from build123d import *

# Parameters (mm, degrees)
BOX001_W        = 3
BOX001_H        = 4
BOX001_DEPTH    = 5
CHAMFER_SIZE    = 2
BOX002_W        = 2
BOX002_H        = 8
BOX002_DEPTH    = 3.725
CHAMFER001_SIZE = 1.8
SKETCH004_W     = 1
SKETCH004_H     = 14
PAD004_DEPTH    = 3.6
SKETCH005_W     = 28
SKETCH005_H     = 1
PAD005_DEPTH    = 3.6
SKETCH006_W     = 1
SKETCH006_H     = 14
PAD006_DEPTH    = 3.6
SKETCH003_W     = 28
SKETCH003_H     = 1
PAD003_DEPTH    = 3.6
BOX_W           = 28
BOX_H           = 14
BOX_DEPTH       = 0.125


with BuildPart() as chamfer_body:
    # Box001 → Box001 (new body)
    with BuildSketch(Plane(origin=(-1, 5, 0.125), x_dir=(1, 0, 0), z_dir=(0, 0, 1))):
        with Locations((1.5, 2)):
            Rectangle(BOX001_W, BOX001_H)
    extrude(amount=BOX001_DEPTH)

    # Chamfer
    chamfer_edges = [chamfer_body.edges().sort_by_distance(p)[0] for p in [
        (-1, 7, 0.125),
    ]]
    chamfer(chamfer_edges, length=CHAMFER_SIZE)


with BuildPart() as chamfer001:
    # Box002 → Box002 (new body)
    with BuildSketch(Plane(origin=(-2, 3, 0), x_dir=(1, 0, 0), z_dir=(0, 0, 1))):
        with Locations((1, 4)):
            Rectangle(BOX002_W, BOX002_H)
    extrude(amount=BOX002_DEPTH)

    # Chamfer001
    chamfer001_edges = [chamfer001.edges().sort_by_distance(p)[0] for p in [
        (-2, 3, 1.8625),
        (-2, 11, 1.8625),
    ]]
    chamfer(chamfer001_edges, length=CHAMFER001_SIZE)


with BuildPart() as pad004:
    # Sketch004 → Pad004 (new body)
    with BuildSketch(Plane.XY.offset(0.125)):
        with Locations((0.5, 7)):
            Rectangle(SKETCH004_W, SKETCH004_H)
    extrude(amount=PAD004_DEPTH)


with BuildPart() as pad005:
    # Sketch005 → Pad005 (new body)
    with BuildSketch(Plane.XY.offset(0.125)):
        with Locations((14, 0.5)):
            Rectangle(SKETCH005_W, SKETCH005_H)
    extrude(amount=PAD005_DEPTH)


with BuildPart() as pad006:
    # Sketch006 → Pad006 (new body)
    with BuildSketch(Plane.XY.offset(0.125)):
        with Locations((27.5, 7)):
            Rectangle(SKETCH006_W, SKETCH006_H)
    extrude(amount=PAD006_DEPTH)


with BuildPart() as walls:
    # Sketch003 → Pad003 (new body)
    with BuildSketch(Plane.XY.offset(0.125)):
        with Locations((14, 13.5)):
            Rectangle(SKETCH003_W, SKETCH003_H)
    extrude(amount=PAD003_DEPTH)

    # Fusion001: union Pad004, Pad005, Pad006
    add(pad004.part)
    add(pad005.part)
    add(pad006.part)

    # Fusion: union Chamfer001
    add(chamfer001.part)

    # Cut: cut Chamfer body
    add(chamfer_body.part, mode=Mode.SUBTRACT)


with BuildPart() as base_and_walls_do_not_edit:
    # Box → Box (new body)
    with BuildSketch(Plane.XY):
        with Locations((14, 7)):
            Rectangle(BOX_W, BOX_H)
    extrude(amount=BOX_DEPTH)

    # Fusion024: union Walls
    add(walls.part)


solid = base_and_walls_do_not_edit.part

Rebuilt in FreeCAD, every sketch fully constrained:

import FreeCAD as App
import Part
import Sketcher

V = App.Vector
Q = App.Units.Quantity


def edges_at(feature, points):
    """Names of the edges that pass closest to the given points."""
    edges = feature.Shape.Edges
    near = lambda p: min(range(len(edges)), key=lambda i: edges[i].distToShape(Part.Vertex(*p))[0])
    return sorted({f"Edge{near(p) + 1}" for p in points})


def add_polygon(sketch, points):
    """Adds a closed chain of lines whose ends are joined by coincident constraints."""
    first, n = sketch.GeometryCount, len(points)
    for a, b in zip(points, points[1:] + points[:1]):
        sketch.addGeometry(Part.LineSegment(App.Vector(*a, 0), App.Vector(*b, 0)), False)
    for i in range(n):
        sketch.addConstraint(Sketcher.Constraint("Coincident", first + i, 2, first + (i + 1) % n, 1))

doc = App.newDocument("Part")
body = doc.addObject("PartDesign::Body", "Body")

sketch1 = body.newObject("Sketcher::SketchObject", "Sketch")
sketch1.AttachmentSupport = (doc.getObject("XY_Plane"), [""])
sketch1.MapMode = "FlatFace"
sketch1.AttachmentOffset = App.Placement(V(0, 0, 0.125), App.Rotation())
add_polygon(sketch1, [(-1, 9), (-1, 5), (2, 5), (2, 9)])
sketch1.addConstraint([
    Sketcher.Constraint("Vertical", 0),
    Sketcher.Constraint("Horizontal", 1),
    Sketcher.Constraint("Vertical", 2),
    Sketcher.Constraint("Horizontal", 3),
    Sketcher.Constraint("DistanceX", 1, 1, 1, 2, Q("3 mm")),
    Sketcher.Constraint("DistanceY", 0, 2, 0, 1, Q("4 mm")),
    Sketcher.Constraint("DistanceX", 0, 2, -1, 1, Q("1 mm")),
    Sketcher.Constraint("DistanceY", -1, 1, 0, 2, Q("5 mm")),
])
pad1 = body.newObject("PartDesign::Pad", "Pad")
pad1.Profile = sketch1
pad1.Length = 5
doc.recompute()

chamfer = body.newObject("PartDesign::Chamfer", "Chamfer")
chamfer.Base = (pad1, edges_at(pad1, [(-1, 7, 0.125)]))
chamfer.Size = 2
body2 = doc.addObject("PartDesign::Body", "Body001")

sketch2 = body2.newObject("Sketcher::SketchObject", "Sketch001")
sketch2.AttachmentSupport = (doc.getObject("XY_Plane001"), [""])
sketch2.MapMode = "FlatFace"
add_polygon(sketch2, [(-2, 11), (-2, 3), (0, 3), (0, 11)])
sketch2.addConstraint([
    Sketcher.Constraint("Vertical", 0),
    Sketcher.Constraint("Horizontal", 1),
    Sketcher.Constraint("Vertical", 2),
    Sketcher.Constraint("Horizontal", 3),
    Sketcher.Constraint("PointOnObject", 1, 2, -2),
    Sketcher.Constraint("DistanceX", 1, 1, 1, 2, Q("2 mm")),
    Sketcher.Constraint("DistanceY", 0, 2, 0, 1, Q("8 mm")),
    Sketcher.Constraint("DistanceY", -1, 1, 0, 2, Q("3 mm")),
])
pad2 = body2.newObject("PartDesign::Pad", "Pad001")
pad2.Profile = sketch2
pad2.Length = 3.725
doc.recompute()

chamfer2 = body2.newObject("PartDesign::Chamfer", "Chamfer001")
chamfer2.Base = (pad2, edges_at(pad2, [(-2, 3, 1.863), (-2, 11, 1.863)]))
chamfer2.Size = 1.8
body3 = doc.addObject("PartDesign::Body", "Body002")

sketch3 = body3.newObject("Sketcher::SketchObject", "Sketch002")
sketch3.AttachmentSupport = (doc.getObject("XY_Plane002"), [""])
sketch3.MapMode = "FlatFace"
sketch3.AttachmentOffset = App.Placement(V(0, 0, 0.125), App.Rotation())
add_polygon(sketch3, [(0, 14), (0, 0), (1, 0), (1, 14)])
sketch3.addConstraint([
    Sketcher.Constraint("Vertical", 0),
    Sketcher.Constraint("Horizontal", 1),
    Sketcher.Constraint("Vertical", 2),
    Sketcher.Constraint("Horizontal", 3),
    Sketcher.Constraint("Coincident", 0, 2, -1, 1),
    Sketcher.Constraint("DistanceX", 1, 1, 1, 2, Q("1 mm")),
    Sketcher.Constraint("DistanceY", 0, 2, 0, 1, Q("14 mm")),
])
pad3 = body3.newObject("PartDesign::Pad", "Pad002")
pad3.Profile = sketch3
pad3.Length = 3.6
body4 = doc.addObject("PartDesign::Body", "Body003")

sketch4 = body4.newObject("Sketcher::SketchObject", "Sketch003")
sketch4.AttachmentSupport = (doc.getObject("XY_Plane003"), [""])
sketch4.MapMode = "FlatFace"
sketch4.AttachmentOffset = App.Placement(V(0, 0, 0.125), App.Rotation())
add_polygon(sketch4, [(0, 1), (0, 0), (28, 0), (28, 1)])
sketch4.addConstraint([
    Sketcher.Constraint("Vertical", 0),
    Sketcher.Constraint("Horizontal", 1),
    Sketcher.Constraint("Vertical", 2),
    Sketcher.Constraint("Horizontal", 3),
    Sketcher.Constraint("Coincident", 0, 2, -1, 1),
    Sketcher.Constraint("DistanceX", 1, 1, 1, 2, Q("28 mm")),
    Sketcher.Constraint("DistanceY", 0, 2, 0, 1, Q("1 mm")),
])
pad4 = body4.newObject("PartDesign::Pad", "Pad003")
pad4.Profile = sketch4
pad4.Length = 3.6
body5 = doc.addObject("PartDesign::Body", "Body004")

sketch5 = body5.newObject("Sketcher::SketchObject", "Sketch004")
sketch5.AttachmentSupport = (doc.getObject("XY_Plane004"), [""])
sketch5.MapMode = "FlatFace"
sketch5.AttachmentOffset = App.Placement(V(0, 0, 0.125), App.Rotation())
add_polygon(sketch5, [(27, 14), (27, 0), (28, 0), (28, 14)])
sketch5.addConstraint([
    Sketcher.Constraint("Vertical", 0),
    Sketcher.Constraint("Horizontal", 1),
    Sketcher.Constraint("Vertical", 2),
    Sketcher.Constraint("Horizontal", 3),
    Sketcher.Constraint("PointOnObject", 0, 2, -1),
    Sketcher.Constraint("DistanceX", 1, 1, 1, 2, Q("1 mm")),
    Sketcher.Constraint("DistanceY", 0, 2, 0, 1, Q("14 mm")),
    Sketcher.Constraint("DistanceX", -1, 1, 0, 2, Q("27 mm")),
])
pad5 = body5.newObject("PartDesign::Pad", "Pad004")
pad5.Profile = sketch5
pad5.Length = 3.6
body6 = doc.addObject("PartDesign::Body", "Body005")

sketch6 = body6.newObject("Sketcher::SketchObject", "Sketch005")
sketch6.AttachmentSupport = (doc.getObject("XY_Plane005"), [""])
sketch6.MapMode = "FlatFace"
sketch6.AttachmentOffset = App.Placement(V(0, 0, 0.125), App.Rotation())
add_polygon(sketch6, [(0, 14), (0, 13), (28, 13), (28, 14)])
sketch6.addConstraint([
    Sketcher.Constraint("Vertical", 0),
    Sketcher.Constraint("Horizontal", 1),
    Sketcher.Constraint("Vertical", 2),
    Sketcher.Constraint("Horizontal", 3),
    Sketcher.Constraint("PointOnObject", 0, 2, -2),
    Sketcher.Constraint("DistanceX", 1, 1, 1, 2, Q("28 mm")),
    Sketcher.Constraint("DistanceY", 0, 2, 0, 1, Q("1 mm")),
    Sketcher.Constraint("DistanceY", -1, 1, 0, 2, Q("13 mm")),
])
pad6 = body6.newObject("PartDesign::Pad", "Pad005")
pad6.Profile = sketch6
pad6.Length = 3.6
doc.recompute()

boolean = body6.newObject("PartDesign::Boolean", "Boolean")
boolean.Type = "Fuse"
boolean.addObjects([body3])
doc.recompute()

boolean2 = body6.newObject("PartDesign::Boolean", "Boolean001")
boolean2.Type = "Fuse"
boolean2.addObjects([body4])
doc.recompute()

boolean3 = body6.newObject("PartDesign::Boolean", "Boolean002")
boolean3.Type = "Fuse"
boolean3.addObjects([body5])
doc.recompute()

boolean4 = body6.newObject("PartDesign::Boolean", "Boolean003")
boolean4.Type = "Fuse"
boolean4.addObjects([body2])
doc.recompute()

boolean5 = body6.newObject("PartDesign::Boolean", "Boolean004")
boolean5.Type = "Cut"
boolean5.addObjects([body])
body7 = doc.addObject("PartDesign::Body", "Body006")

sketch7 = body7.newObject("Sketcher::SketchObject", "Sketch006")
sketch7.AttachmentSupport = (doc.getObject("XY_Plane006"), [""])
sketch7.MapMode = "FlatFace"
add_polygon(sketch7, [(0, 14), (0, 0), (28, 0), (28, 14)])
sketch7.addConstraint([
    Sketcher.Constraint("Vertical", 0),
    Sketcher.Constraint("Horizontal", 1),
    Sketcher.Constraint("Vertical", 2),
    Sketcher.Constraint("Horizontal", 3),
    Sketcher.Constraint("Coincident", 0, 2, -1, 1),
    Sketcher.Constraint("DistanceX", 1, 1, 1, 2, Q("28 mm")),
    Sketcher.Constraint("DistanceY", 0, 2, 0, 1, Q("14 mm")),
])
pad7 = body7.newObject("PartDesign::Pad", "Pad006")
pad7.Profile = sketch7
pad7.Length = 0.125
doc.recompute()

boolean6 = body7.newObject("PartDesign::Boolean", "Boolean005")
boolean6.Type = "Fuse"
boolean6.addObjects([body6])

doc.recompute()
